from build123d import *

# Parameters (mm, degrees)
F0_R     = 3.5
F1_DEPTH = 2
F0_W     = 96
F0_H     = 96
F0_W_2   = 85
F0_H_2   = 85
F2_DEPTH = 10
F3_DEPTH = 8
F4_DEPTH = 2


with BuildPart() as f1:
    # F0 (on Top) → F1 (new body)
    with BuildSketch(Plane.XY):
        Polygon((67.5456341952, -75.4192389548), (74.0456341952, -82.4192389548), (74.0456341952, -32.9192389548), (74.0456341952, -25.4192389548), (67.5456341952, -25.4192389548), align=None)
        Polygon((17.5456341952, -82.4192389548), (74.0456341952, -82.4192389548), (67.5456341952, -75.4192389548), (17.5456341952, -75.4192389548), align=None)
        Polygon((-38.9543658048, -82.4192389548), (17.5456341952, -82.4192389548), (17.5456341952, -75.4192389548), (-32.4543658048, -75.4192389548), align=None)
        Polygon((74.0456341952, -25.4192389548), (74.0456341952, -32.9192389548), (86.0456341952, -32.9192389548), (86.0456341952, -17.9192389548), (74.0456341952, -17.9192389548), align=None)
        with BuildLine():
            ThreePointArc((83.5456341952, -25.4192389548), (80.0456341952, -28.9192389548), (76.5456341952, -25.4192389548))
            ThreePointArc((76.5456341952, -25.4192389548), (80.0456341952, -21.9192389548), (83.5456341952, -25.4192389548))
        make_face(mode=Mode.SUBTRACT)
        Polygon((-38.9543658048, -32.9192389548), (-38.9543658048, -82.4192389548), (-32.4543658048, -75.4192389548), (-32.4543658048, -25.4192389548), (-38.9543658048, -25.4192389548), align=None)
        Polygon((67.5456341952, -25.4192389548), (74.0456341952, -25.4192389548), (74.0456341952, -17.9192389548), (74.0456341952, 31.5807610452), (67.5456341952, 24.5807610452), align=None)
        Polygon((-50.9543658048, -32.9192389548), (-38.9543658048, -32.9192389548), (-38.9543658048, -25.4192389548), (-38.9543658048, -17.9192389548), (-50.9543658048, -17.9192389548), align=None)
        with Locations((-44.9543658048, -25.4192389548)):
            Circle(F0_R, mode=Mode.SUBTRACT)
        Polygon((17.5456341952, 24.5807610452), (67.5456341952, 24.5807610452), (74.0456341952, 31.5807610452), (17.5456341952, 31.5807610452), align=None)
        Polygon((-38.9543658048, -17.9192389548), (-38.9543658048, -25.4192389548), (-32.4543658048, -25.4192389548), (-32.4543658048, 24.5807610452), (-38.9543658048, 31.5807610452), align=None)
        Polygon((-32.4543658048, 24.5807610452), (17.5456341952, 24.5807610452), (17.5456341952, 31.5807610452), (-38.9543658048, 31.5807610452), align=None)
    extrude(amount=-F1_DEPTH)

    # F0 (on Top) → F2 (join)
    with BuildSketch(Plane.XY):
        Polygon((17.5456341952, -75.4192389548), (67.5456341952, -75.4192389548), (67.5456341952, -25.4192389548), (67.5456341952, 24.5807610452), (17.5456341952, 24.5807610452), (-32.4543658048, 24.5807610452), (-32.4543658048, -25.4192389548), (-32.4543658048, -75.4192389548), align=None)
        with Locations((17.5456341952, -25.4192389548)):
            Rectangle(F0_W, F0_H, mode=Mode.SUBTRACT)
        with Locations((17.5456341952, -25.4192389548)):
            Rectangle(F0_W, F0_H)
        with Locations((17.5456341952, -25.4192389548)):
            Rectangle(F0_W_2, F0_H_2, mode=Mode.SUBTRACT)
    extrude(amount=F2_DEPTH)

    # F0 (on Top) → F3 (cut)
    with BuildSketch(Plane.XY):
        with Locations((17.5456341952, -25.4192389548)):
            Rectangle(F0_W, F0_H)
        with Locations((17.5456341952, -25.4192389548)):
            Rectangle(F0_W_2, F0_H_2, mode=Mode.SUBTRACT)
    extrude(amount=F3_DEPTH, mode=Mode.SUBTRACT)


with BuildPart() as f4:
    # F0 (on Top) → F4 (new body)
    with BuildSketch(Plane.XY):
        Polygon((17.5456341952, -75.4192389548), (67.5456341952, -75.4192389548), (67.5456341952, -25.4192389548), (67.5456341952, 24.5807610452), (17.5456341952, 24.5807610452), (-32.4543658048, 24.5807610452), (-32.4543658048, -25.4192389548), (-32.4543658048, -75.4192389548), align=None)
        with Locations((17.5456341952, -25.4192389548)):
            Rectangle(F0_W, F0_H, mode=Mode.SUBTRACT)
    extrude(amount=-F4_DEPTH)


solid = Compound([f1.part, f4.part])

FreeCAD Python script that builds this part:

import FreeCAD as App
import Part
import Sketcher

doc = App.newDocument("Part")
body = doc.addObject("PartDesign::Body", "Body")
body.AllowCompound = True

sketch1 = body.newObject("Sketcher::SketchObject", "Sketch")
sketch1.AttachmentSupport = (doc.getObject("XY_Plane"), [""])
sketch1.MapMode = "FlatFace"
sketch1.addGeometry([
    Part.LineSegment(App.Vector(74, -82.4, 0), App.Vector(74, -32.9, 0)),
    Part.LineSegment(App.Vector(74, -32.9, 0), App.Vector(86, -32.9, 0)),
    Part.LineSegment(App.Vector(86, -32.9, 0), App.Vector(86, -17.9, 0)),
    Part.LineSegment(App.Vector(86, -17.9, 0), App.Vector(74, -17.9, 0)),
    Part.LineSegment(App.Vector(74, -17.9, 0), App.Vector(74, 31.6, 0)),
    Part.LineSegment(App.Vector(74, 31.6, 0), App.Vector(-39, 31.6, 0)),
    Part.LineSegment(App.Vector(-39, 31.6, 0), App.Vector(-39, -17.9, 0)),
    Part.LineSegment(App.Vector(-39, -17.9, 0), App.Vector(-51, -17.9, 0)),
    Part.LineSegment(App.Vector(-51, -17.9, 0), App.Vector(-51, -32.9, 0)),
    Part.LineSegment(App.Vector(-51, -32.9, 0), App.Vector(-39, -32.9, 0)),
    Part.LineSegment(App.Vector(-39, -32.9, 0), App.Vector(-39, -82.4, 0)),
    Part.LineSegment(App.Vector(-39, -82.4, 0), App.Vector(74, -82.4, 0)),
    Part.LineSegment(App.Vector(67.5, 24.6, 0), App.Vector(67.5, -75.4, 0)),
    Part.LineSegment(App.Vector(67.5, -75.4, 0), App.Vector(-32.5, -75.4, 0)),
    Part.LineSegment(App.Vector(-32.5, -75.4, 0), App.Vector(-32.5, 24.6, 0)),
    Part.LineSegment(App.Vector(-32.5, 24.6, 0), App.Vector(67.5, 24.6, 0)),
    Part.Circle(App.Vector(-45, -25.4, 0), App.Vector(0, 0, 1), 3.5),
    Part.Circle(App.Vector(80, -25.4, 0), App.Vector(0, 0, 1), 3.5),
], False)
sketch1.addConstraint([
    Sketcher.Constraint("Coincident", 0, 2, 1, 1),
    Sketcher.Constraint("Coincident", 1, 2, 2, 1),
    Sketcher.Constraint("Coincident", 2, 2, 3, 1),
    Sketcher.Constraint("Coincident", 3, 2, 4, 1),
    Sketcher.Constraint("Coincident", 4, 2, 5, 1),
    Sketcher.Constraint("Coincident", 5, 2, 6, 1),
    Sketcher.Constraint("Coincident", 6, 2, 7, 1),
    Sketcher.Constraint("Coincident", 7, 2, 8, 1),
    Sketcher.Constraint("Coincident", 8, 2, 9, 1),
    Sketcher.Constraint("Coincident", 9, 2, 10, 1),
    Sketcher.Constraint("Coincident", 10, 2, 11, 1),
    Sketcher.Constraint("Coincident", 11, 2, 0, 1),
    Sketcher.Constraint("Coincident", 12, 2, 13, 1),
    Sketcher.Constraint("Coincident", 13, 2, 14, 1),
    Sketcher.Constraint("Coincident", 14, 2, 15, 1),
    Sketcher.Constraint("Coincident", 15, 2, 12, 1),
    Sketcher.Constraint("Vertical", 0),
    Sketcher.Constraint("Horizontal", 1),
    Sketcher.Constraint("Vertical", 2),
    Sketcher.Constraint("Horizontal", 3),
    Sketcher.Constraint("Vertical", 4),
    Sketcher.Constraint("Horizontal", 5),
    Sketcher.Constraint("Vertical", 6),
    Sketcher.Constraint("Horizontal", 7),
    Sketcher.Constraint("Vertical", 8),
    Sketcher.Constraint("Horizontal", 9),
    Sketcher.Constraint("Vertical", 10),
    Sketcher.Constraint("Horizontal", 11),
    Sketcher.Constraint("Vertical", 12),
    Sketcher.Constraint("Horizontal", 13),
    Sketcher.Constraint("Vertical", 14),
    Sketcher.Constraint("Horizontal", 15),
    Sketcher.Constraint("Equal", 16, 17),
    Sketcher.Constraint("Horizontal", 16, 3, 17, 3),
    Sketcher.Constraint("Horizontal", 3, 2, 6, 2),
    Sketcher.Constraint("Horizontal", 1, 2, 8, 2),
    Sketcher.Constraint("Vertical", 0, 2, 3, 2),
    Sketcher.Constraint("Vertical", 6, 2, 9, 2),
    Sketcher.Constraint("Equal", 3, 7),
    Sketcher.Constraint("Equal", 0, 4),
    Sketcher.Constraint("Equal", 15, 12),
    Sketcher.Constraint("Diameter", 16, 7.0),
    Sketcher.Constraint("DistanceX", 1, 1, 1, 2, 12.0),
    Sketcher.Constraint("DistanceX", 5, 2, 5, 1, 113.0),
    Sketcher.Constraint("DistanceX", 13, 2, 13, 1, 100.0),
    Sketcher.Constraint("DistanceY", 2, 1, 2, 2, 15.0),
    Sketcher.Constraint("DistanceY", 0, 1, 0, 2, 49.5),
    Sketcher.Constraint("DistanceX", 16, 3, 17, 3, 125.0),
    Sketcher.Constraint("DistanceX", 0, 2, 17, 3, 6.0),
    Sketcher.Constraint("DistanceY", 17, 3, 4, 2, 57.0),
    Sketcher.Constraint("DistanceY", 11, 2, 12, 2, 7.0),
    Sketcher.Constraint("DistanceX", 12, 2, 11, 2, 6.5),
    Sketcher.Constraint("DistanceY", 16, 3, -1, 1, 25.419239),
    Sketcher.Constraint("DistanceX", 16, 3, -1, 1, 44.954366),
])
pad1 = body.newObject("PartDesign::Pad", "Pad")
pad1.Profile = sketch1
pad1.Length = 2
pad1.Reversed = True

sketch2 = body.newObject("Sketcher::SketchObject", "Sketch001")
sketch2.AttachmentSupport = (doc.getObject("XY_Plane"), [""])
sketch2.MapMode = "FlatFace"
sketch2.addGeometry([
    Part.LineSegment(App.Vector(68, -75, 0), App.Vector(68, 25, 0)),
    Part.LineSegment(App.Vector(68, 25, 0), App.Vector(-32, 25, 0)),
    Part.LineSegment(App.Vector(-32, 25, 0), App.Vector(-32, -75, 0)),
    Part.LineSegment(App.Vector(-32, -75, 0), App.Vector(68, -75, 0)),
    Part.LineSegment(App.Vector(60, -68, 0), App.Vector(-25, -68, 0)),
    Part.LineSegment(App.Vector(-25, -68, 0), App.Vector(-25, 17, 0)),
    Part.LineSegment(App.Vector(-25, 17, 0), App.Vector(60, 17, 0)),
    Part.LineSegment(App.Vector(60, 17, 0), App.Vector(60, -68, 0)),
], False)
sketch2.addConstraint([
    Sketcher.Constraint("Coincident", 0, 2, 1, 1),
    Sketcher.Constraint("Coincident", 1, 2, 2, 1),
    Sketcher.Constraint("Coincident", 2, 2, 3, 1),
    Sketcher.Constraint("Coincident", 3, 2, 0, 1),
    Sketcher.Constraint("Coincident", 4, 2, 5, 1),
    Sketcher.Constraint("Coincident", 5, 2, 6, 1),
    Sketcher.Constraint("Coincident", 6, 2, 7, 1),
    Sketcher.Constraint("Coincident", 7, 2, 4, 1),
    Sketcher.Constraint("Vertical", 0),
    Sketcher.Constraint("Horizontal", 1),
    Sketcher.Constraint("Vertical", 2),
    Sketcher.Constraint("Horizontal", 3),
    Sketcher.Constraint("Horizontal", 4),
    Sketcher.Constraint("Vertical", 5),
    Sketcher.Constraint("Horizontal", 6),
    Sketcher.Constraint("Vertical", 7),
    Sketcher.Constraint("Equal", 3, 0),
    Sketcher.Constraint("Equal", 6, 5),
    Sketcher.Constraint("DistanceX", 1, 2, 1, 1, 100.0),
    Sketcher.Constraint("DistanceX", 4, 2, 4, 1, 85.0),
    Sketcher.Constraint("DistanceX", 2, 2, 4, 2, 7.5),
    Sketcher.Constraint("DistanceY", 2, 2, 4, 2, 7.5),
    Sketcher.Constraint("DistanceY", -1, 1, 0, 2, 24.580761),
    Sketcher.Constraint("DistanceX", -1, 1, 0, 2, 67.545634),
])
pad2 = body.newObject("PartDesign::Pad", "Pad001")
pad2.Profile = sketch2
pad2.Length = 10

sketch3 = body.newObject("Sketcher::SketchObject", "Sketch002")
sketch3.AttachmentSupport = (doc.getObject("XY_Plane"), [""])
sketch3.MapMode = "FlatFace"
sketch3.addGeometry([
    Part.LineSegment(App.Vector(-30, 23, 0), App.Vector(-30, -73, 0)),
    Part.LineSegment(App.Vector(-30, -73, 0), App.Vector(66, -73, 0)),
    Part.LineSegment(App.Vector(66, -73, 0), App.Vector(66, 23, 0)),
    Part.LineSegment(App.Vector(66, 23, 0), App.Vector(-30, 23, 0)),
    Part.LineSegment(App.Vector(60, -68, 0), App.Vector(-25, -68, 0)),
    Part.LineSegment(App.Vector(-25, -68, 0), App.Vector(-25, 17, 0)),
    Part.LineSegment(App.Vector(-25, 17, 0), App.Vector(60, 17, 0)),
    Part.LineSegment(App.Vector(60, 17, 0), App.Vector(60, -68, 0)),
], False)
sketch3.addConstraint([
    Sketcher.Constraint("Coincident", 0, 2, 1, 1),
    Sketcher.Constraint("Coincident", 1, 2, 2, 1),
    Sketcher.Constraint("Coincident", 2, 2, 3, 1),
    Sketcher.Constraint("Coincident", 3, 2, 0, 1),
    Sketcher.Constraint("Coincident", 4, 2, 5, 1),
    Sketcher.Constraint("Coincident", 5, 2, 6, 1),
    Sketcher.Constraint("Coincident", 6, 2, 7, 1),
    Sketcher.Constraint("Coincident", 7, 2, 4, 1),
    Sketcher.Constraint("Vertical", 0),
    Sketcher.Constraint("Horizontal", 1),
    Sketcher.Constraint("Vertical", 2),
    Sketcher.Constraint("Horizontal", 3),
    Sketcher.Constraint("Horizontal", 4),
    Sketcher.Constraint("Vertical", 5),
    Sketcher.Constraint("Horizontal", 6),
    Sketcher.Constraint("Vertical", 7),
    Sketcher.Constraint("Equal", 3, 0),
    Sketcher.Constraint("Equal", 6, 5),
    Sketcher.Constraint("DistanceX", 1, 1, 1, 2, 96.0),
    Sketcher.Constraint("DistanceX", 4, 2, 4, 1, 85.0),
    Sketcher.Constraint("DistanceX", 0, 2, 4, 2, 5.5),
    Sketcher.Constraint("DistanceY", 0, 2, 4, 2, 5.5),
    Sketcher.Constraint("DistanceY", 0, 2, -1, 1, 73.419239),
    Sketcher.Constraint("DistanceX", 0, 2, -1, 1, 30.454366),
])
pocket1 = body.newObject("PartDesign::Pocket", "Pocket")
pocket1.Profile = sketch3
pocket1.Length = 8
pocket1.Reversed = True
body2 = doc.addObject("PartDesign::Body", "Body001")

sketch4 = body2.newObject("Sketcher::SketchObject", "Sketch003")
sketch4.AttachmentSupport = (doc.getObject("XY_Plane001"), [""])
sketch4.MapMode = "FlatFace"
sketch4.addGeometry([
    Part.LineSegment(App.Vector(68, -75, 0), App.Vector(68, 25, 0)),
    Part.LineSegment(App.Vector(68, 25, 0), App.Vector(-32, 25, 0)),
    Part.LineSegment(App.Vector(-32, 25, 0), App.Vector(-32, -75, 0)),
    Part.LineSegment(App.Vector(-32, -75, 0), App.Vector(68, -75, 0)),
    Part.LineSegment(App.Vector(66, -73, 0), App.Vector(-30, -73, 0)),
    Part.LineSegment(App.Vector(-30, -73, 0), App.Vector(-30, 23, 0)),
    Part.LineSegment(App.Vector(-30, 23, 0), App.Vector(66, 23, 0)),
    Part.LineSegment(App.Vector(66, 23, 0), App.Vector(66, -73, 0)),
], False)
sketch4.addConstraint([
    Sketcher.Constraint("Coincident", 0, 2, 1, 1),
    Sketcher.Constraint("Coincident", 1, 2, 2, 1),
    Sketcher.Constraint("Coincident", 2, 2, 3, 1),
    Sketcher.Constraint("Coincident", 3, 2, 0, 1),
    Sketcher.Constraint("Coincident", 4, 2, 5, 1),
    Sketcher.Constraint("Coincident", 5, 2, 6, 1),
    Sketcher.Constraint("Coincident", 6, 2, 7, 1),
    Sketcher.Constraint("Coincident", 7, 2, 4, 1),
    Sketcher.Constraint("Vertical", 0),
    Sketcher.Constraint("Horizontal", 1),
    Sketcher.Constraint("Vertical", 2),
    Sketcher.Constraint("Horizontal", 3),
    Sketcher.Constraint("Horizontal", 4),
    Sketcher.Constraint("Vertical", 5),
    Sketcher.Constraint("Horizontal", 6),
    Sketcher.Constraint("Vertical", 7),
    Sketcher.Constraint("Equal", 3, 0),
    Sketcher.Constraint("Equal", 6, 5),
    Sketcher.Constraint("DistanceX", 1, 2, 1, 1, 100.0),
    Sketcher.Constraint("DistanceX", 4, 2, 4, 1, 96.0),
    Sketcher.Constraint("DistanceX", 2, 2, 4, 2, 2.0),
    Sketcher.Constraint("DistanceY", 2, 2, 4, 2, 2.0),
    Sketcher.Constraint("DistanceY", -1, 1, 0, 2, 24.580761),
    Sketcher.Constraint("DistanceX", -1, 1, 0, 2, 67.545634),
])
pad3 = body2.newObject("PartDesign::Pad", "Pad002")
pad3.Profile = sketch4
pad3.Length = 2
pad3.Reversed = True

doc.recompute()
